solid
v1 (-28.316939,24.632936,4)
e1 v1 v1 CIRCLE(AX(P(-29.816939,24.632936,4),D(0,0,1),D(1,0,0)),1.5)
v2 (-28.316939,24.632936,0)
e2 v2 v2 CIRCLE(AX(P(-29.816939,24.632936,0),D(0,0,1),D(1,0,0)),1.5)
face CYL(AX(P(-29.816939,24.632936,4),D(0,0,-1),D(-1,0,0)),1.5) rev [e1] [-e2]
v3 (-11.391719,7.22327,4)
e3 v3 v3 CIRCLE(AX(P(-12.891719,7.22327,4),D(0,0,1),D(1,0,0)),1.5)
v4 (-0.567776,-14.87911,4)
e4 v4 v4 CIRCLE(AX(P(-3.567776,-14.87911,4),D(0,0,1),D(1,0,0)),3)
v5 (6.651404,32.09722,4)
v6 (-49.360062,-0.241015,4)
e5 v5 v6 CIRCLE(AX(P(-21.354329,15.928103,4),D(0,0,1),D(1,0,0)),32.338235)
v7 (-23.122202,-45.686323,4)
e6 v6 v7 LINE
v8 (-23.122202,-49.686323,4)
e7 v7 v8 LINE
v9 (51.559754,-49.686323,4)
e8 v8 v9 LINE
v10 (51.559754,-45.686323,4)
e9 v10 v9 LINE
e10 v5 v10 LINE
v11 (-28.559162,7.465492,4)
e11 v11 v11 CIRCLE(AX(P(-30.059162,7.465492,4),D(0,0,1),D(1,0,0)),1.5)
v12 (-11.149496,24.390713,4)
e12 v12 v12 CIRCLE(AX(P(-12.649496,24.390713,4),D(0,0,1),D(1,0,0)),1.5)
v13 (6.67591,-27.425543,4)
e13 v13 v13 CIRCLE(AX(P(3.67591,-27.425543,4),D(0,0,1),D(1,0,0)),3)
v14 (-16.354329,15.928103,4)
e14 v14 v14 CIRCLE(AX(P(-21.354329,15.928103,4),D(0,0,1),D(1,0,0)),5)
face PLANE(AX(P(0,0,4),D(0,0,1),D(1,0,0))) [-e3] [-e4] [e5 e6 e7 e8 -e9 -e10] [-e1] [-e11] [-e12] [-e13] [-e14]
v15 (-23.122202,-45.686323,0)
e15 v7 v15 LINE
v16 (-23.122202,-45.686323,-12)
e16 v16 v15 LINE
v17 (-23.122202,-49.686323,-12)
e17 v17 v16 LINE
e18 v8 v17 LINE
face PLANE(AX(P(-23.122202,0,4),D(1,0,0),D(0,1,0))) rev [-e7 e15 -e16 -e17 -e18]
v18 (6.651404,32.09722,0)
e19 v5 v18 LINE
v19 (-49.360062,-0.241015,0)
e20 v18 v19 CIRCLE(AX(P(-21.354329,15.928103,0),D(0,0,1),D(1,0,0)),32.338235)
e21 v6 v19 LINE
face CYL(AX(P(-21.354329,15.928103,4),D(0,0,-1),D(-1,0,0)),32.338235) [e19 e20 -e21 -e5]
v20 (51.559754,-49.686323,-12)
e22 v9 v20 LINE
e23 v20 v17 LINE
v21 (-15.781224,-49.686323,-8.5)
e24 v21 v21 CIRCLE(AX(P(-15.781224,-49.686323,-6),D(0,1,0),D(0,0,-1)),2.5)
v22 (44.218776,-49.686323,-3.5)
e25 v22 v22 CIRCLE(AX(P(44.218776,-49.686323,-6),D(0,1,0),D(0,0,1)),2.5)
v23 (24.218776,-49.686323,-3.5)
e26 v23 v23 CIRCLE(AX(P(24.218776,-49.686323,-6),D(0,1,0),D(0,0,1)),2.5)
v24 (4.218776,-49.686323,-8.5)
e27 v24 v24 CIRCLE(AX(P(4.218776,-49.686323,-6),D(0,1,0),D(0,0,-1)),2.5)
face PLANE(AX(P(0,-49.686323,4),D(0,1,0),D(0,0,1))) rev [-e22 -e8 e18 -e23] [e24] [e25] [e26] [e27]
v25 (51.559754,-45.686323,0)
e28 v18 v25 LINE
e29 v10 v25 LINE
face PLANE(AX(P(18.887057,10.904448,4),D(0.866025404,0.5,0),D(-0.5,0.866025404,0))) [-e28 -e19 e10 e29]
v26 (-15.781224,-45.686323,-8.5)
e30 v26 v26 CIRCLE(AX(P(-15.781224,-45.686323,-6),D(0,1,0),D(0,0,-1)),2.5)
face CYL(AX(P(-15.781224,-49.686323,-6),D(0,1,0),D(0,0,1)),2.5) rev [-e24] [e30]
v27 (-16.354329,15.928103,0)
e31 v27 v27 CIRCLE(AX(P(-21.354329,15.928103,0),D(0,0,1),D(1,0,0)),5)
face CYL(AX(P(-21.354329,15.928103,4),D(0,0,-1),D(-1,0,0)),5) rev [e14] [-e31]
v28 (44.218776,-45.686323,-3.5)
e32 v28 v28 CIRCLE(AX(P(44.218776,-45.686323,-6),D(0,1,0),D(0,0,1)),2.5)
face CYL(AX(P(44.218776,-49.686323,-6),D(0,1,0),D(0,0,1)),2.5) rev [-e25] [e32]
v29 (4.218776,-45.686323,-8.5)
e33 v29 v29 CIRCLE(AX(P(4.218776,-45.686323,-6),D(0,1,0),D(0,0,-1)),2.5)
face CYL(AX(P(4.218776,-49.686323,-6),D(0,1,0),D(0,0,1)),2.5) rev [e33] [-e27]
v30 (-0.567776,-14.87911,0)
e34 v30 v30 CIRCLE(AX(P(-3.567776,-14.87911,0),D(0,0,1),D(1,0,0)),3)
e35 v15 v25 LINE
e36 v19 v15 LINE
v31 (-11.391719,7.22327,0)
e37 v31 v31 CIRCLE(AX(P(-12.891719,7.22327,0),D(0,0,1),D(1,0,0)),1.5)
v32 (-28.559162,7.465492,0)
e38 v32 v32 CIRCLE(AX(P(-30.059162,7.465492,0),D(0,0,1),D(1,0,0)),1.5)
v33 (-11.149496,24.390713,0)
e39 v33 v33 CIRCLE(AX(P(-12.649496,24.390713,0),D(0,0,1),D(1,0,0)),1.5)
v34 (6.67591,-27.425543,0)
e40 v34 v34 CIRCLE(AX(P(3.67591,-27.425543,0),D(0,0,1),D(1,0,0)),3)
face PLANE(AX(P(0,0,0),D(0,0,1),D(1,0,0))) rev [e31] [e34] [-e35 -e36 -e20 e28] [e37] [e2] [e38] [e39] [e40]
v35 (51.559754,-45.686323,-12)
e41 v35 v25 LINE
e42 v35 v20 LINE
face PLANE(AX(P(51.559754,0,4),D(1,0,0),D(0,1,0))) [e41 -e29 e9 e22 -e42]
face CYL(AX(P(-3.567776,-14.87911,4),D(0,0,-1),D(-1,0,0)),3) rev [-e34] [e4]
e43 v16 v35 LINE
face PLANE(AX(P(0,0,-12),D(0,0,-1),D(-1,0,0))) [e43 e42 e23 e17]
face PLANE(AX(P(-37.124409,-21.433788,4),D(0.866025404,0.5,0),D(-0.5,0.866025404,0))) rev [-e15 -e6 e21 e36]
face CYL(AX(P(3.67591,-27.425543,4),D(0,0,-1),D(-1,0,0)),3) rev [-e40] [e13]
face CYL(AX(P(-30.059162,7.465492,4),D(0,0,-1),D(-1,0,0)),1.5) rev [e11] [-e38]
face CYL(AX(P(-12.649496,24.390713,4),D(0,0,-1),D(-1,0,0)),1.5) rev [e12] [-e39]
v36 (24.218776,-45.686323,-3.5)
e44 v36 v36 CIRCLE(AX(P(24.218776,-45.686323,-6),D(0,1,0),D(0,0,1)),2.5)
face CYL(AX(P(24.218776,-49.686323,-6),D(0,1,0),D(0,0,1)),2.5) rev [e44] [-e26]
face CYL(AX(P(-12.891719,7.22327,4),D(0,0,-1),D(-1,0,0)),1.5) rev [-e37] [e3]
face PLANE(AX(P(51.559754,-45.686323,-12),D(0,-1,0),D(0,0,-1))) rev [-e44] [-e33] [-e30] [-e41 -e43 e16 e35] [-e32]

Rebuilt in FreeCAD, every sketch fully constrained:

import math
import FreeCAD as App
import Part
import Sketcher
Q = App.Units.Quantity

doc = App.newDocument("Part")
body = doc.addObject("PartDesign::Body", "Body")

# Sketch on XY plane
sketch1 = doc.addObject("Sketcher::SketchObject", "Sketch")
body.addObject(sketch1)
sketch1.AttachmentSupport = (doc.XY_Plane, [""])
sketch1.MapMode = "FlatFace"
sketch1.addGeometry(Part.LineSegment(App.Vector(-49.4, -0.2, 0), App.Vector(-23.1, -45.7, 0)), False)
sketch1.addGeometry(Part.LineSegment(App.Vector(-23.1, -45.7, 0), App.Vector(-23.1, -49.7, 0)), False)
sketch1.addGeometry(Part.LineSegment(App.Vector(-23.1, -49.7, 0), App.Vector(51.6, -49.7, 0)), False)
sketch1.addGeometry(Part.LineSegment(App.Vector(51.6, -49.7, 0), App.Vector(51.6, -45.7, 0)), False)
sketch1.addGeometry(Part.LineSegment(App.Vector(51.6, -45.7, 0), App.Vector(6.7, 32.1, 0)), False)
sketch1.addGeometry(Part.ArcOfCircle(Part.Circle(App.Vector(-21.4, 15.9, 0), App.Vector(0, 0, 1), 32.3), math.radians(30), math.radians(210)), False)
sketch1.addGeometry(Part.Circle(App.Vector(3.7, -27.4, 0), App.Vector(0, 0, 1), 3), False)
sketch1.addGeometry(Part.Circle(App.Vector(-3.6, -14.9, 0), App.Vector(0, 0, 1), 3), False)
sketch1.addGeometry(Part.Circle(App.Vector(-30.1, 7.5, 0), App.Vector(0, 0, 1), 1.5), False)
sketch1.addGeometry(Part.Circle(App.Vector(-12.9, 7.2, 0), App.Vector(0, 0, 1), 1.5), False)
sketch1.addGeometry(Part.Circle(App.Vector(-29.8, 24.6, 0), App.Vector(0, 0, 1), 1.5), False)
sketch1.addGeometry(Part.Circle(App.Vector(-21.4, 15.9, 0), App.Vector(0, 0, 1), 5), False)
sketch1.addGeometry(Part.Circle(App.Vector(-12.6, 24.4, 0), App.Vector(0, 0, 1), 1.5), False)
sketch1.addConstraint(Sketcher.Constraint("Coincident", 0, 2, 1, 1))
sketch1.addConstraint(Sketcher.Constraint("Coincident", 1, 2, 2, 1))
sketch1.addConstraint(Sketcher.Constraint("Coincident", 2, 2, 3, 1))
sketch1.addConstraint(Sketcher.Constraint("Coincident", 3, 2, 4, 1))
sketch1.addConstraint(Sketcher.Constraint("Tangent", 4, 2, 5, 1))
sketch1.addConstraint(Sketcher.Constraint("Tangent", 5, 2, 0, 1))
sketch1.addConstraint(Sketcher.Constraint("Vertical", 1))
sketch1.addConstraint(Sketcher.Constraint("Horizontal", 2))
sketch1.addConstraint(Sketcher.Constraint("Vertical", 3))
sketch1.addConstraint(Sketcher.Constraint("Coincident", 11, 3, 5, 3))
sketch1.addConstraint(Sketcher.Constraint("Equal", 6, 7))
sketch1.addConstraint(Sketcher.Constraint("Equal", 8, 9))
sketch1.addConstraint(Sketcher.Constraint("Equal", 9, 10))
sketch1.addConstraint(Sketcher.Constraint("Equal", 10, 12))
sketch1.addConstraint(Sketcher.Constraint("Parallel", 0, 4))
sketch1.addConstraint(Sketcher.Constraint("Horizontal", 0, 2, 3, 2))
sketch1.addConstraint(Sketcher.Constraint("Diameter", 6, 6.0))
sketch1.addConstraint(Sketcher.Constraint("Diameter", 8, 3.0))
sketch1.addConstraint(Sketcher.Constraint("Diameter", 11, 10.0))
sketch1.addConstraint(Sketcher.Constraint("DistanceY", 1, 2, 1, 1, 4.0))
sketch1.addConstraint(Sketcher.Constraint("Angle", 0, Q("-60 deg")))
sketch1.addConstraint(Sketcher.Constraint("Radius", 5, 32.338235))
sketch1.addConstraint(Sketcher.Constraint("Distance", 4, 89.816699))
sketch1.addConstraint(Sketcher.Constraint("DistanceX", 0, 2, -1, 1, 23.122202))
sketch1.addConstraint(Sketcher.Constraint("DistanceX", 12, 3, 4, 2, 19.3009))
sketch1.addConstraint(Sketcher.Constraint("DistanceX", 5, 2, 8, 3, 19.3009))
sketch1.addConstraint(Sketcher.Constraint("DistanceX", -1, 1, 6, 3, 3.67591))
sketch1.addConstraint(Sketcher.Constraint("DistanceY", 7, 3, -1, 1, 14.87911))
sketch1.addConstraint(Sketcher.Constraint("DistanceX", 9, 3, -1, 1, 12.891719))
sketch1.addConstraint(Sketcher.Constraint("DistanceY", -1, 1, 9, 3, 7.22327))
sketch1.addConstraint(Sketcher.Constraint("DistanceX", 10, 3, -1, 1, 29.816939))
sketch1.addConstraint(Sketcher.Constraint("DistanceY", -1, 1, 4, 2, 32.09722))
sketch1.addConstraint(Sketcher.Constraint("DistanceY", 8, 3, 5, 3, 8.46261))
sketch1.addConstraint(Sketcher.Constraint("DistanceY", 6, 3, 10, 3, 52.058479))
sketch1.addConstraint(Sketcher.Constraint("DistanceY", 5, 3, 12, 3, 8.46261))
sketch1.addConstraint(Sketcher.Constraint("DistanceY", 0, 2, 6, 3, 18.260779))
sketch1.addConstraint(Sketcher.Constraint("DistanceX", 7, 3, 2, 2, 55.12753))
pad1 = doc.addObject("PartDesign::Pad", "Pad")
body.addObject(pad1)
pad1.Profile = sketch1
pad1.Length = 4

# Sketch on XY plane
sketch2 = doc.addObject("Sketcher::SketchObject", "Sketch001")
body.addObject(sketch2)
sketch2.AttachmentSupport = (doc.XY_Plane, [""])
sketch2.MapMode = "FlatFace"
sketch2.addGeometry(Part.LineSegment(App.Vector(51.6, -45.7, 0), App.Vector(51.6, -49.7, 0)), False)
sketch2.addGeometry(Part.LineSegment(App.Vector(51.6, -49.7, 0), App.Vector(-23.1, -49.7, 0)), False)
sketch2.addGeometry(Part.LineSegment(App.Vector(-23.1, -49.7, 0), App.Vector(-23.1, -45.7, 0)), False)
sketch2.addGeometry(Part.LineSegment(App.Vector(-23.1, -45.7, 0), App.Vector(51.6, -45.7, 0)), False)
sketch2.addConstraint(Sketcher.Constraint("Coincident", 0, 2, 1, 1))
sketch2.addConstraint(Sketcher.Constraint("Coincident", 1, 2, 2, 1))
sketch2.addConstraint(Sketcher.Constraint("Coincident", 2, 2, 3, 1))
sketch2.addConstraint(Sketcher.Constraint("Coincident", 3, 2, 0, 1))
sketch2.addConstraint(Sketcher.Constraint("Vertical", 0))
sketch2.addConstraint(Sketcher.Constraint("Horizontal", 1))
sketch2.addConstraint(Sketcher.Constraint("Vertical", 2))
sketch2.addConstraint(Sketcher.Constraint("Horizontal", 3))
sketch2.addConstraint(Sketcher.Constraint("DistanceY", 0, 2, 0, 1, 4.0))
sketch2.addConstraint(Sketcher.Constraint("DistanceX", 1, 2, -1, 1, 23.122202))
sketch2.addConstraint(Sketcher.Constraint("DistanceX", 1, 2, 1, 1, 74.681955))
sketch2.addConstraint(Sketcher.Constraint("DistanceY", 0, 2, -1, 1, 49.686323))
pad2 = doc.addObject("PartDesign::Pad", "Pad001")
body.addObject(pad2)
pad2.Profile = sketch2
pad2.Length = 12
pad2.Reversed = True

# Sketch on XZ plane
sketch3 = doc.addObject("Sketcher::SketchObject", "Sketch002")
body.addObject(sketch3)
sketch3.AttachmentSupport = (doc.XZ_Plane, [""])
sketch3.MapMode = "FlatFace"
sketch3.AttachmentOffset = App.Placement(App.Vector(0, 0, 45.686323), App.Rotation())
sketch3.addGeometry(Part.Circle(App.Vector(24.2, -6, 0), App.Vector(0, 0, 1), 2.5), False)
sketch3.addGeometry(Part.Circle(App.Vector(44.2, -6, 0), App.Vector(0, 0, 1), 2.5), False)
sketch3.addGeometry(Part.Circle(App.Vector(-15.8, -6, 0), App.Vector(0, 0, 1), 2.5), False)
sketch3.addGeometry(Part.Circle(App.Vector(4.2, -6, 0), App.Vector(0, 0, 1), 2.5), False)
sketch3.addConstraint(Sketcher.Constraint("Equal", 0, 1))
sketch3.addConstraint(Sketcher.Constraint("Equal", 1, 2))
sketch3.addConstraint(Sketcher.Constraint("Equal", 2, 3))
sketch3.addConstraint(Sketcher.Constraint("Horizontal", 0, 3, 1, 3))
sketch3.addConstraint(Sketcher.Constraint("Horizontal", 1, 3, 2, 3))
sketch3.addConstraint(Sketcher.Constraint("Horizontal", 2, 3, 3, 3))
sketch3.addConstraint(Sketcher.Constraint("Diameter", 0, 5.0))
sketch3.addConstraint(Sketcher.Constraint("DistanceY", 0, 3, -1, 1, 6.0))
sketch3.addConstraint(Sketcher.Constraint("DistanceX", 0, 3, 1, 3, 20.0))
sketch3.addConstraint(Sketcher.Constraint("DistanceX", 2, 3, 0, 3, 40.0))
sketch3.addConstraint(Sketcher.Constraint("DistanceX", 3, 3, 0, 3, 20.0))
sketch3.addConstraint(Sketcher.Constraint("DistanceX", -1, 1, 0, 3, 24.218776))
pocket1 = doc.addObject("PartDesign::Pocket", "Pocket")
body.addObject(pocket1)
pocket1.Profile = sketch3
pocket1.Type = "ThroughAll"
pocket1.Reversed = True

doc.recompute()
